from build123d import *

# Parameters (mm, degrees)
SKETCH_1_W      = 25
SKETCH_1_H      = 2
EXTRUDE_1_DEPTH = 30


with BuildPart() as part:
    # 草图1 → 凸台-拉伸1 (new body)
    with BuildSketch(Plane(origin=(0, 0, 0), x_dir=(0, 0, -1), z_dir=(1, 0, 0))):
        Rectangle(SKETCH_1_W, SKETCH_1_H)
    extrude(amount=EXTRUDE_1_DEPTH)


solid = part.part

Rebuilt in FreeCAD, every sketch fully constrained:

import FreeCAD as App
import Part
import Sketcher

V = App.Vector


def add_polygon(sketch, points):
    """Adds a closed chain of lines whose ends are joined by coincident constraints."""
    first, n = sketch.GeometryCount, len(points)
    for a, b in zip(points, points[1:] + points[:1]):
        sketch.addGeometry(Part.LineSegment(App.Vector(*a, 0), App.Vector(*b, 0)), False)
    for i in range(n):
        sketch.addConstraint(Sketcher.Constraint("Coincident", first + i, 2, first + (i + 1) % n, 1))

doc = App.newDocument("Part")
params = doc.addObject("Spreadsheet::Sheet", "Params")
for row, (alias, value) in enumerate([
    ("sketch1_width", "2 mm"),
    ("sketch1_height", "25 mm"),
    ("pad1_length", "30 mm"),
], start=1):
    params.set(f"A{row}", alias)
    params.set(f"B{row}", "=" + value)
    params.setAlias(f"B{row}", alias)

body = doc.addObject("PartDesign::Body", "Body")

# Sketch on YZ plane
sketch1 = body.newObject("Sketcher::SketchObject", "Sketch")
sketch1.AttachmentSupport = (doc.getObject("YZ_Plane"), [""])
sketch1.MapMode = "FlatFace"
add_polygon(sketch1, [(1, 12.5), (-1, 12.5), (-1, -12.5), (1, -12.5)])  # lines 0-3
sketch1.addConstraint([
    Sketcher.Constraint("Horizontal", 0),
    Sketcher.Constraint("Vertical", 1),
    Sketcher.Constraint("Horizontal", 2),
    Sketcher.Constraint("Vertical", 3),
    Sketcher.Constraint("Symmetric", 0, 2, 2, 2, -1, 1),
    Sketcher.Constraint("DistanceX", 0, 2, 0, 1, 2.0),
    Sketcher.Constraint("DistanceY", 1, 2, 1, 1, 25.0),
])
sketch1.setExpression("Constraints[9]", "Params.sketch1_width")
sketch1.setExpression("Constraints[10]", "Params.sketch1_height")
pad1 = body.newObject("PartDesign::Pad", "Pad")
pad1.Profile = sketch1
pad1.setExpression("Length", "Params.pad1_length")

doc.recompute()
